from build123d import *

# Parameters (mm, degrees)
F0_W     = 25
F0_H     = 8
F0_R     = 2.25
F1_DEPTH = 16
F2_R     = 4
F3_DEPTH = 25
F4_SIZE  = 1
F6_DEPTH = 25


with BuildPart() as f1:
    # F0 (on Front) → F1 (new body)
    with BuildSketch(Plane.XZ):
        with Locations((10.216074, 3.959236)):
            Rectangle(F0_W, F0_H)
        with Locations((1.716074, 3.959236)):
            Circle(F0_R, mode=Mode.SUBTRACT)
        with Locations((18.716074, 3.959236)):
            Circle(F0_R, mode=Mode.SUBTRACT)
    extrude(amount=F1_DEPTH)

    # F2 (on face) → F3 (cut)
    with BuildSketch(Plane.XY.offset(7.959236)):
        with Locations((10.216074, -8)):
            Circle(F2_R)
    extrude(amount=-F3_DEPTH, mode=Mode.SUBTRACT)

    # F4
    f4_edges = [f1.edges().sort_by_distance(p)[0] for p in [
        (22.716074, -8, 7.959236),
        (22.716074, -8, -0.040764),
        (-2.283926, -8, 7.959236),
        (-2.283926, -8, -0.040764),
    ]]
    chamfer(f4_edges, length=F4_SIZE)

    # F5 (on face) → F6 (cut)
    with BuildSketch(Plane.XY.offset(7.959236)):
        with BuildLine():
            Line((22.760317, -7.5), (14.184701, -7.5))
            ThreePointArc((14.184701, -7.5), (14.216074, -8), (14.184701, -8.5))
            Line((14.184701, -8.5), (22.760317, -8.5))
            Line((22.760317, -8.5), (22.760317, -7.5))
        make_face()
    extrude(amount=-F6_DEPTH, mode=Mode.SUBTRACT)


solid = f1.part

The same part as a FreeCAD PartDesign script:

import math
import FreeCAD as App
import Part
import Sketcher
from FreeCAD import Vector


def edges_at(feature, points):
    """Names of the edges that pass closest to the given points."""
    edges = feature.Shape.Edges
    near = lambda p: min(range(len(edges)), key=lambda i: edges[i].distToShape(Part.Vertex(*p))[0])
    return sorted({f"Edge{near(p) + 1}" for p in points})


def add_polygon(sketch, points):
    """Adds a closed chain of lines whose ends are joined by coincident constraints."""
    first, n = sketch.GeometryCount, len(points)
    for a, b in zip(points, points[1:] + points[:1]):
        sketch.addGeometry(Part.LineSegment(App.Vector(*a, 0), App.Vector(*b, 0)), False)
    for i in range(n):
        sketch.addConstraint(Sketcher.Constraint("Coincident", first + i, 2, first + (i + 1) % n, 1))

doc = App.newDocument("Part")
params = doc.addObject("Spreadsheet::Sheet", "Params")
for row, (alias, value) in enumerate([
    ("sketch1_diameter", "4.5 mm"),
    ("sketch1_width", "25 mm"),
    ("sketch1_height", "8 mm"),
    ("pad1_length", "16 mm"),
    ("sketch2_diameter", "8 mm"),
    ("pocket1_length", "25 mm"),
    ("chamfer_size", "1 mm"),
    ("sketch3_height", "1 mm"),
    ("pocket2_length", "25 mm"),
], start=1):
    params.set(f"A{row}", alias)
    params.set(f"B{row}", "=" + value)
    params.setAlias(f"B{row}", alias)

body = doc.addObject("PartDesign::Body", "Body")

sketch1 = body.newObject("Sketcher::SketchObject", "Sketch")
sketch1.AttachmentSupport = (doc.getObject("XZ_Plane"), [""])
sketch1.MapMode = "FlatFace"
add_polygon(sketch1, [(-2.3, 8), (-2.3, 0), (22.7, 0), (22.7, 8)])
sketch1.addGeometry(Part.Circle(Vector(1.7, 4, 0), Vector(0, 0, 1), 2.2), False)
sketch1.addGeometry(Part.Circle(Vector(18.7, 4, 0), Vector(0, 0, 1), 2.2), False)
sketch1.addConstraint([
    Sketcher.Constraint("Vertical", 0),
    Sketcher.Constraint("Horizontal", 1),
    Sketcher.Constraint("Vertical", 2),
    Sketcher.Constraint("Horizontal", 3),
    Sketcher.Constraint("Equal", 4, 5),
    Sketcher.Constraint("Horizontal", 4, 3, 5, 3),
    Sketcher.Constraint("Diameter", 4, 4.5),
    Sketcher.Constraint("DistanceX", 1, 1, 1, 2, 25.0),
    Sketcher.Constraint("DistanceY", 0, 2, 0, 1, 8.0),
    Sketcher.Constraint("DistanceX", 4, 3, 5, 3, 17.0),
    Sketcher.Constraint("DistanceX", 0, 2, 4, 3, 4.0),
    Sketcher.Constraint("DistanceY", 0, 2, 4, 3, 4.0),
    Sketcher.Constraint("DistanceX", -1, 1, 4, 3, 1.716074),
    Sketcher.Constraint("DistanceY", -1, 1, 4, 3, 3.959236),
])
sketch1.setExpression("Constraints[10]", "Params.sketch1_diameter")
sketch1.setExpression("Constraints[11]", "Params.sketch1_width")
sketch1.setExpression("Constraints[12]", "Params.sketch1_height")
pad1 = body.newObject("PartDesign::Pad", "Pad")
pad1.Profile = sketch1
pad1.setExpression("Length", "Params.pad1_length")

sketch2 = body.newObject("Sketcher::SketchObject", "Sketch001")
sketch2.AttachmentSupport = (doc.getObject("XY_Plane"), [""])
sketch2.MapMode = "FlatFace"
sketch2.AttachmentOffset = App.Placement(Vector(0, 0, 7.959236), App.Rotation())
sketch2.addGeometry(Part.Circle(Vector(10.2, -8, 0), Vector(0, 0, 1), 4), False)
sketch2.addConstraint([
    Sketcher.Constraint("Diameter", 0, 8.0),
    Sketcher.Constraint("DistanceY", 0, 3, -1, 1, 8.0),
    Sketcher.Constraint("DistanceX", -1, 1, 0, 3, 10.216074),
])
sketch2.setExpression("Constraints[0]", "Params.sketch2_diameter")
pocket1 = body.newObject("PartDesign::Pocket", "Pocket")
pocket1.Profile = sketch2
pocket1.setExpression("Length", "Params.pocket1_length")
doc.recompute()

chamfer = body.newObject("PartDesign::Chamfer", "Chamfer")
chamfer.Base = (pocket1, edges_at(pocket1, [
    (22.716, -8, 7.959),
    (22.716, -8, -0.041),
    (-2.284, -8, 7.959),
    (-2.284, -8, -0.041),
]))
chamfer.setExpression("Size", "Params.chamfer_size")

sketch3 = body.newObject("Sketcher::SketchObject", "Sketch002")
sketch3.AttachmentSupport = (doc.getObject("XY_Plane"), [""])
sketch3.MapMode = "FlatFace"
sketch3.AttachmentOffset = App.Placement(Vector(0, 0, 7.959236), App.Rotation())
sketch3.addGeometry([
    Part.LineSegment(Vector(22.8, -7.5, 0), Vector(14.2, -7.5, 0)),
    Part.ArcOfCircle(Part.Circle(Vector(10.2, -8, 0), Vector(0, 0, 1), 4), math.radians(-7.18), math.radians(7.18)),
    Part.LineSegment(Vector(14.2, -8.5, 0), Vector(22.8, -8.5, 0)),
    Part.LineSegment(Vector(22.8, -8.5, 0), Vector(22.8, -7.5, 0)),
], False)
sketch3.addConstraint([
    Sketcher.Constraint("Coincident", 0, 2, 1, 2),
    Sketcher.Constraint("Coincident", 1, 1, 2, 1),
    Sketcher.Constraint("Coincident", 2, 2, 3, 1),
    Sketcher.Constraint("Coincident", 3, 2, 0, 1),
    Sketcher.Constraint("Horizontal", 0),
    Sketcher.Constraint("Horizontal", 2),
    Sketcher.Constraint("Vertical", 3),
    Sketcher.Constraint("Vertical", 0, 2, 1, 1),
    Sketcher.Constraint("DistanceY", 3, 1, 3, 2, 1.0),
    Sketcher.Constraint("DistanceY", 1, 3, -1, 1, 8.0),
    Sketcher.Constraint("Radius", 1, 4.000004),
    Sketcher.Constraint("DistanceX", -1, 1, 0, 2, 14.184701),
    Sketcher.Constraint("DistanceX", 0, 2, 0, 1, 8.575616),
])
sketch3.setExpression("Constraints[8]", "Params.sketch3_height")
pocket2 = body.newObject("PartDesign::Pocket", "Pocket001")
pocket2.Profile = sketch3
pocket2.setExpression("Length", "Params.pocket2_length")

doc.recompute()
